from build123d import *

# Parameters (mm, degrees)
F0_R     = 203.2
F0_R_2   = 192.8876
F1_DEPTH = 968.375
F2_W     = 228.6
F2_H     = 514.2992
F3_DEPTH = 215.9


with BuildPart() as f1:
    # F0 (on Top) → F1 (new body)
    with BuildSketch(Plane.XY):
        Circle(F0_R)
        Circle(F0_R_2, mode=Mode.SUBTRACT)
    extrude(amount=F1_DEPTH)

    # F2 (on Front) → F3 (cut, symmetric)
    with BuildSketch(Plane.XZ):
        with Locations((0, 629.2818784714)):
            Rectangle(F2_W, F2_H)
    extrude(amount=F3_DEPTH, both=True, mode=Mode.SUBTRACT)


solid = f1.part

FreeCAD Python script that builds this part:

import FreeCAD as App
import Part
import Sketcher
Q = App.Units.Quantity


def add_polygon(sketch, points):
    """Adds a closed chain of lines whose ends are joined by coincident constraints."""
    first, n = sketch.GeometryCount, len(points)
    for a, b in zip(points, points[1:] + points[:1]):
        sketch.addGeometry(Part.LineSegment(App.Vector(*a, 0), App.Vector(*b, 0)), False)
    for i in range(n):
        sketch.addConstraint(Sketcher.Constraint("Coincident", first + i, 2, first + (i + 1) % n, 1))

doc = App.newDocument("Part")
body = doc.addObject("PartDesign::Body", "Body")

sketch1 = body.newObject("Sketcher::SketchObject", "Sketch")
sketch1.AttachmentSupport = (doc.getObject("XY_Plane"), [""])
sketch1.MapMode = "FlatFace"
sketch1.addGeometry([
    Part.Circle(App.Vector(0, 0, 0), App.Vector(0, 0, 1), 203.2),
    Part.Circle(App.Vector(0, 0, 0), App.Vector(0, 0, 1), 192.8876),
], False)
sketch1.addConstraint([
    Sketcher.Constraint("Coincident", 0, 3, -1, 1),
    Sketcher.Constraint("Coincident", 1, 3, -1, 1),
    Sketcher.Constraint("Diameter", 0, Q("16 in")),
    Sketcher.Constraint("Diameter", 1, Q("15.188 in")),
])
pad1 = body.newObject("PartDesign::Pad", "Pad")
pad1.Profile = sketch1
pad1.Length = Q("38.125 in")

sketch2 = body.newObject("Sketcher::SketchObject", "Sketch001")
sketch2.AttachmentSupport = (doc.getObject("XZ_Plane"), [""])
sketch2.MapMode = "FlatFace"
add_polygon(sketch2, [(-114.3, 886.431478), (-114.3, 372.132278), (114.3, 372.132278), (114.3, 886.431478)])
sketch2.addConstraint([
    Sketcher.Constraint("Vertical", 0),
    Sketcher.Constraint("Horizontal", 1),
    Sketcher.Constraint("Vertical", 2),
    Sketcher.Constraint("Horizontal", 3),
    Sketcher.Constraint("DistanceX", 1, 1, 1, 2, Q("9 in")),
    Sketcher.Constraint("DistanceX", 0, 2, -1, 1, Q("4.5 in")),
    Sketcher.Constraint("DistanceY", 0, 2, 0, 1, Q("20.248 in")),
    Sketcher.Constraint("DistanceY", -1, 1, 0, 2, 372.132278),
])
pocket1 = body.newObject("PartDesign::Pocket", "Pocket")
pocket1.Profile = sketch2
pocket1.Length = Q("17 in")
pocket1.Midplane = True

doc.recompute()
